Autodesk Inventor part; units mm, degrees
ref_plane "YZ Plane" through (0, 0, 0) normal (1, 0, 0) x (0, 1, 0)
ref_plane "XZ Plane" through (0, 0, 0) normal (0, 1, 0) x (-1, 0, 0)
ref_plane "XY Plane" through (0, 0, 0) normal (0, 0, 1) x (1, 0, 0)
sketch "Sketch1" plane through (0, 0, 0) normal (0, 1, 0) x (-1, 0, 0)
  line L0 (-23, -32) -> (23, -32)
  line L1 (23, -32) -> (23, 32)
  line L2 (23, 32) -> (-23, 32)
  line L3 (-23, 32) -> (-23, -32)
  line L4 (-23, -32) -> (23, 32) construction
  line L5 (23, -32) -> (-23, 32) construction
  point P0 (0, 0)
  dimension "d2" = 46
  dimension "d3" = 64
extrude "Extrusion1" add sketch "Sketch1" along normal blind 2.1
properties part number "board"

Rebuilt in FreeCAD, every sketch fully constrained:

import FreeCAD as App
import Part
import Sketcher
from FreeCAD import Vector
Q = App.Units.Quantity

doc = App.newDocument("Part")
params = doc.addObject("Spreadsheet::Sheet", "Params")
for row, (alias, value) in enumerate([
    ("sketch1_width", "46 mm"),
    ("sketch1_height", "64 mm"),
    ("pad1_length", "2.1 mm"),
], start=1):
    params.set(f"A{row}", alias)
    params.set(f"B{row}", "=" + value)
    params.setAlias(f"B{row}", alias)

body = doc.addObject("PartDesign::Body", "Body")

sketch1 = body.newObject("Sketcher::SketchObject", "Sketch")
sketch1.AttachmentSupport = (doc.getObject("XZ_Plane"), [""])
sketch1.MapMode = "FlatFace"
sketch1.addGeometry(Part.LineSegment(Vector(23, 32, 0), Vector(23, -32, 0)), False)
sketch1.addGeometry(Part.LineSegment(Vector(23, -32, 0), Vector(-23, -32, 0)), False)
sketch1.addGeometry(Part.LineSegment(Vector(-23, -32, 0), Vector(-23, 32, 0)), False)
sketch1.addGeometry(Part.LineSegment(Vector(-23, 32, 0), Vector(23, 32, 0)), False)
sketch1.addConstraint(Sketcher.Constraint("Coincident", 0, 2, 1, 1))
sketch1.addConstraint(Sketcher.Constraint("Coincident", 1, 2, 2, 1))
sketch1.addConstraint(Sketcher.Constraint("Coincident", 2, 2, 3, 1))
sketch1.addConstraint(Sketcher.Constraint("Coincident", 3, 2, 0, 1))
sketch1.addConstraint(Sketcher.Constraint("Vertical", 0))
sketch1.addConstraint(Sketcher.Constraint("Horizontal", 1))
sketch1.addConstraint(Sketcher.Constraint("Vertical", 2))
sketch1.addConstraint(Sketcher.Constraint("Horizontal", 3))
sketch1.addConstraint(Sketcher.Constraint("Symmetric", 0, 2, 2, 2, -1, 1))
sketch1.addConstraint(Sketcher.Constraint("DistanceX", 1, 2, 1, 1, Q("46 mm")))
sketch1.addConstraint(Sketcher.Constraint("DistanceY", 0, 2, 0, 1, Q("64 mm")))
sketch1.setExpression("Constraints[9]", "Params.sketch1_width")
sketch1.setExpression("Constraints[10]", "Params.sketch1_height")
pad1 = body.newObject("PartDesign::Pad", "Pad")
pad1.Profile = sketch1
pad1.setExpression("Length", "Params.pad1_length")
pad1.Reversed = True

doc.recompute()
